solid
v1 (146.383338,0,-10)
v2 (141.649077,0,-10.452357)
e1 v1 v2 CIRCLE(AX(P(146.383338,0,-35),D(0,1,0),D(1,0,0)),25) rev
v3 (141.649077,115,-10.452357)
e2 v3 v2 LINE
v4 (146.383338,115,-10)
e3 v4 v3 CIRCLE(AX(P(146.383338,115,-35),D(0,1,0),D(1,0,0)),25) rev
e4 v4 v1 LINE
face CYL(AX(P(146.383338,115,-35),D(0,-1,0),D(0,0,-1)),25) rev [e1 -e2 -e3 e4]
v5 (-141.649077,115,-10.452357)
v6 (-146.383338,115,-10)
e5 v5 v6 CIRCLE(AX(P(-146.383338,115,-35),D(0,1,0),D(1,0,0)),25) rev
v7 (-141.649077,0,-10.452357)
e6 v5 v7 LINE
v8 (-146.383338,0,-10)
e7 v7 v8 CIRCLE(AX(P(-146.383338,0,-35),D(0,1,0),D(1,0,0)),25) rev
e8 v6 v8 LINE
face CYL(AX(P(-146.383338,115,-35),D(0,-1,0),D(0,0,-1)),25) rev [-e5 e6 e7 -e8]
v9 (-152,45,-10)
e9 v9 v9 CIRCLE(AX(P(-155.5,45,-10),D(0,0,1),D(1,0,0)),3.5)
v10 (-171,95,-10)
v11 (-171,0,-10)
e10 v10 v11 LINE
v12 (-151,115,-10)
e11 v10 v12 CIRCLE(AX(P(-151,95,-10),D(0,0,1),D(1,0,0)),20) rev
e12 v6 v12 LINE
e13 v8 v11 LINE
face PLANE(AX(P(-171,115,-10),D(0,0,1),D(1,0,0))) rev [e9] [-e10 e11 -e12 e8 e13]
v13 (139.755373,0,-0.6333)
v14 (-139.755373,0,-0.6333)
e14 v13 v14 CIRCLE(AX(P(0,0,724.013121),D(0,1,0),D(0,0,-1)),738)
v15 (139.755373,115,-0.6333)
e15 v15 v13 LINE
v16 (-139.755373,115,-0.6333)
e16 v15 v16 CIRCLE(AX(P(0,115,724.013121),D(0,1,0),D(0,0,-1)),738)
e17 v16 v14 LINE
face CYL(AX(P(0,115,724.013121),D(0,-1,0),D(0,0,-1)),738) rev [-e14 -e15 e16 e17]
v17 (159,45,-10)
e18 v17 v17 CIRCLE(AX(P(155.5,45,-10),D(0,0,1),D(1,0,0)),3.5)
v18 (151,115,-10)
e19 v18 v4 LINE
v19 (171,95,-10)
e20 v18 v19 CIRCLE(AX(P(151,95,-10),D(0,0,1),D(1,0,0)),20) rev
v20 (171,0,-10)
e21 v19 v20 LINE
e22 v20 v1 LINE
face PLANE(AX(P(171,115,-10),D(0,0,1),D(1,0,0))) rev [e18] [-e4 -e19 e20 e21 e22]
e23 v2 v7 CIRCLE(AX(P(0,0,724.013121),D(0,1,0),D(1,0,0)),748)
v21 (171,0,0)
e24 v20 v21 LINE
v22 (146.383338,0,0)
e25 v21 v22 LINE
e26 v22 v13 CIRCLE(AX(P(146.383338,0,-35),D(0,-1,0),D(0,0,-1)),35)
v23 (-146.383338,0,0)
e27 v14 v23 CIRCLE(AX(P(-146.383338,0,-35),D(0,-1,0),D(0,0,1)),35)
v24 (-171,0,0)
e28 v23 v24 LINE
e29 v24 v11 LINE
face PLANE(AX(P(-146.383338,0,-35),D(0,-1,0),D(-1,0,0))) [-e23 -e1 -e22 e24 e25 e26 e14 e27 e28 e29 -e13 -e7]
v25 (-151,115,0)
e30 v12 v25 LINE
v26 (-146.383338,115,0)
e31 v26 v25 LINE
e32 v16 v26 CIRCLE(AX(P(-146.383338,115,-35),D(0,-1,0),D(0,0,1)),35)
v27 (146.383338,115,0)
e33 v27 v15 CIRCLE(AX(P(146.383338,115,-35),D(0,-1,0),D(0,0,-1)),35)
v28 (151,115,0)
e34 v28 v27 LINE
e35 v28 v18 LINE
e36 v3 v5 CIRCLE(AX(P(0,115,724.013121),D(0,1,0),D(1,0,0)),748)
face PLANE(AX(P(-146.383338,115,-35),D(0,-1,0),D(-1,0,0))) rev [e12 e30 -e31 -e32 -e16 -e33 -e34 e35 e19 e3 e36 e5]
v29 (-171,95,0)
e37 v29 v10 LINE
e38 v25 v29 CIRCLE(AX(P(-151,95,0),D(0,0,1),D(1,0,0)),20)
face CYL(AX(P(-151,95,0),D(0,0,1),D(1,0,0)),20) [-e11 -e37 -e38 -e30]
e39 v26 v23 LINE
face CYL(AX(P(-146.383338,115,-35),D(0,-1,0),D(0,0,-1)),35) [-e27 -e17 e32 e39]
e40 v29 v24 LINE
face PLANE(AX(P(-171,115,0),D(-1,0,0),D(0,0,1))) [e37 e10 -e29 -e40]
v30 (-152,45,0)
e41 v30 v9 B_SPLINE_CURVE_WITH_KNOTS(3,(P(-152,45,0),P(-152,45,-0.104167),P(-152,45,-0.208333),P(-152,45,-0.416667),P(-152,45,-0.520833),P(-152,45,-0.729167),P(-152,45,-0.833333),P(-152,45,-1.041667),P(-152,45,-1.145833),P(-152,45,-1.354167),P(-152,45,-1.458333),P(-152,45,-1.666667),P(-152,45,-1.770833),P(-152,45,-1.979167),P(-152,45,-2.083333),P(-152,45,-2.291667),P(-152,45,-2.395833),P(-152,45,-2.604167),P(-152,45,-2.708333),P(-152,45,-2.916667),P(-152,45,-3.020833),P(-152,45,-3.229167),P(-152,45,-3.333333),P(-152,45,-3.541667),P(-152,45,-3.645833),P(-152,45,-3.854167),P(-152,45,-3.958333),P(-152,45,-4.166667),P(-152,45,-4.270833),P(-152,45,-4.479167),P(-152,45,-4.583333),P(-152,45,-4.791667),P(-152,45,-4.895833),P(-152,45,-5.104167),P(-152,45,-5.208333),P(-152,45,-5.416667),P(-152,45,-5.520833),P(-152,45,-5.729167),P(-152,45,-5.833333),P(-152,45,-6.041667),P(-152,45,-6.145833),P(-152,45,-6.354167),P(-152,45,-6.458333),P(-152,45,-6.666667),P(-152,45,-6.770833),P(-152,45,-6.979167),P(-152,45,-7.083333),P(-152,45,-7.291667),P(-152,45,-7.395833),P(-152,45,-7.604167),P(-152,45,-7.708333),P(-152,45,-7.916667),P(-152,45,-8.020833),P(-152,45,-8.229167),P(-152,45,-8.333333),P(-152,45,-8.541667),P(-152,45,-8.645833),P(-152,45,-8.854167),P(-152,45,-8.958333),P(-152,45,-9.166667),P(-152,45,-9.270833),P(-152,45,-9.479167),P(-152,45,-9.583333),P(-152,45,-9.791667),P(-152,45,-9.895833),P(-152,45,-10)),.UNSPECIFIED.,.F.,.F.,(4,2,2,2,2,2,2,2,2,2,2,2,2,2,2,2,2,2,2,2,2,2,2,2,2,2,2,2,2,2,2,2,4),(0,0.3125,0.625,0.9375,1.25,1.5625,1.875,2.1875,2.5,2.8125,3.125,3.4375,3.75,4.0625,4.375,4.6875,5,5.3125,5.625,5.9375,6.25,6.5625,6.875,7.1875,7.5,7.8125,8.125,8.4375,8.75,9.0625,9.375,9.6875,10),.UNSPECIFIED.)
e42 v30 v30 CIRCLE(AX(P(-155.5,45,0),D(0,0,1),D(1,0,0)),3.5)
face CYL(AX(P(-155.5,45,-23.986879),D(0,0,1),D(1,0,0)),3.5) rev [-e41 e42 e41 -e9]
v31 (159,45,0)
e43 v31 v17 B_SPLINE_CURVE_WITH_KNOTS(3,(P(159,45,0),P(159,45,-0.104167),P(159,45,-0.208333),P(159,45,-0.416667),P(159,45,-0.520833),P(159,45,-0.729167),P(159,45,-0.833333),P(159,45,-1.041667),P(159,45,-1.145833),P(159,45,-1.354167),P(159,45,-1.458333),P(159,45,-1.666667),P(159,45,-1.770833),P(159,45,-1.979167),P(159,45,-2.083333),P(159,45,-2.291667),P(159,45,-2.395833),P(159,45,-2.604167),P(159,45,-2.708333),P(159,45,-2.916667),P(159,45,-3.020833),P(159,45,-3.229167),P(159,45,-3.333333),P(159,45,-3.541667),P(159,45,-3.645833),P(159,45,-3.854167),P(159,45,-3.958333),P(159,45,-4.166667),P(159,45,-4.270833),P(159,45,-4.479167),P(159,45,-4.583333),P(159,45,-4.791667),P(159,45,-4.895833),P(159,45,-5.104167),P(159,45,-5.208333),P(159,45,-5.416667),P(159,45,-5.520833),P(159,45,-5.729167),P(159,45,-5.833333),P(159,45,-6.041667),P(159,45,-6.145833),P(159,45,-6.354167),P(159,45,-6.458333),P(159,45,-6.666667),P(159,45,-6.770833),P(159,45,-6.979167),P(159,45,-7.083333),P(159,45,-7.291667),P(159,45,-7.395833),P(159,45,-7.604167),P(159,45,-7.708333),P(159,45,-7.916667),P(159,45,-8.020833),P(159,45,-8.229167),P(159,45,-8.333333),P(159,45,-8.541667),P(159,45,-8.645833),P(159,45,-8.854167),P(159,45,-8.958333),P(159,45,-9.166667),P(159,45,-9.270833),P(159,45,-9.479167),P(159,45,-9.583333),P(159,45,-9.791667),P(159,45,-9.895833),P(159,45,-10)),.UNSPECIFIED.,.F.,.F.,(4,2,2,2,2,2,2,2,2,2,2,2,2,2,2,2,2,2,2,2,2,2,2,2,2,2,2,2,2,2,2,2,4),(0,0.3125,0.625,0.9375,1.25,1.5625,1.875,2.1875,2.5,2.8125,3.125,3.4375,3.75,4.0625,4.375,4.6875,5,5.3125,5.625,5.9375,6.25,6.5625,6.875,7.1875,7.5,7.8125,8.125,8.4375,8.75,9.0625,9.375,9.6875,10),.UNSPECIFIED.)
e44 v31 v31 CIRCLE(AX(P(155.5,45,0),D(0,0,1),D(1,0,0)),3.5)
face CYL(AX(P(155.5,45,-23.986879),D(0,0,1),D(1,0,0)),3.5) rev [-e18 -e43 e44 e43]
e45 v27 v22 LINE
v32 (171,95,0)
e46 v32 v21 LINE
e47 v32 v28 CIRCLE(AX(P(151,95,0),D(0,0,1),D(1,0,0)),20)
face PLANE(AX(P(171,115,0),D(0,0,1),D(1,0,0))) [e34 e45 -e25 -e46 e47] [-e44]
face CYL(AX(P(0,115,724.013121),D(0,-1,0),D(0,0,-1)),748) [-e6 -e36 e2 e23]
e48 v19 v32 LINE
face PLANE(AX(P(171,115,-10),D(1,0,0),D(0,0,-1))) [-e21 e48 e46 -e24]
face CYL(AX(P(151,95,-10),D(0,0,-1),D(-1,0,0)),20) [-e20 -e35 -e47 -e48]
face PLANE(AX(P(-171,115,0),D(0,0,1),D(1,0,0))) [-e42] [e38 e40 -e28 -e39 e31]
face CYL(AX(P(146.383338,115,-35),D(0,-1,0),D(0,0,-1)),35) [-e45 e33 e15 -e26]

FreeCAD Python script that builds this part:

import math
import FreeCAD as App
import Part
import Sketcher
from FreeCAD import Vector


def edges_at(feature, points):
    """Names of the edges that pass closest to the given points."""
    edges = feature.Shape.Edges
    near = lambda p: min(range(len(edges)), key=lambda i: edges[i].distToShape(Part.Vertex(*p))[0])
    return sorted({f"Edge{near(p) + 1}" for p in points})

doc = App.newDocument("Part")
body = doc.addObject("PartDesign::Body", "Body")

sketch1 = doc.addObject("Sketcher::SketchObject", "Sketch")
body.addObject(sketch1)
sketch1.AttachmentSupport = (doc.XZ_Plane, [""])
sketch1.MapMode = "FlatFace"
sketch1.addGeometry(Part.LineSegment(Vector(-171, 0, 0), Vector(-146.4, 0, 0)), False)
sketch1.addGeometry(Part.ArcOfCircle(Part.Circle(Vector(-146.4, -35, 0), Vector(0, 0, 1), 35), math.radians(79.08), math.radians(90)), False)
sketch1.addGeometry(Part.ArcOfCircle(Part.Circle(Vector(0, 724, 0), Vector(0, 0, 1), 738), math.radians(-101), math.radians(-79)), False)
sketch1.addGeometry(Part.ArcOfCircle(Part.Circle(Vector(146.4, -35, 0), Vector(0, 0, 1), 35), math.radians(90), math.radians(100.92)), False)
sketch1.addGeometry(Part.LineSegment(Vector(146.4, 0, 0), Vector(171, 0, 0)), False)
sketch1.addGeometry(Part.LineSegment(Vector(171, 0, 0), Vector(171, -10, 0)), False)
sketch1.addGeometry(Part.LineSegment(Vector(171, -10, 0), Vector(146.4, -10, 0)), False)
sketch1.addGeometry(Part.ArcOfCircle(Part.Circle(Vector(146.4, -35, 0), Vector(0, 0, 1), 25), math.radians(90), math.radians(100.92)), False)
sketch1.addGeometry(Part.ArcOfCircle(Part.Circle(Vector(0, 724, 0), Vector(0, 0, 1), 748), math.radians(-101), math.radians(-79)), False)
sketch1.addGeometry(Part.ArcOfCircle(Part.Circle(Vector(-146.4, -35, 0), Vector(0, 0, 1), 25), math.radians(79.08), math.radians(90)), False)
sketch1.addGeometry(Part.LineSegment(Vector(-146.4, -10, 0), Vector(-171, -10, 0)), False)
sketch1.addGeometry(Part.LineSegment(Vector(-171, -10, 0), Vector(-171, 0, 0)), False)
sketch1.addConstraint(Sketcher.Constraint("Tangent", 0, 2, 1, 2))
sketch1.addConstraint(Sketcher.Constraint("Tangent", 1, 1, 2, 1))
sketch1.addConstraint(Sketcher.Constraint("Tangent", 2, 2, 3, 2))
sketch1.addConstraint(Sketcher.Constraint("Tangent", 3, 1, 4, 1))
sketch1.addConstraint(Sketcher.Constraint("Coincident", 4, 2, 5, 1))
sketch1.addConstraint(Sketcher.Constraint("Coincident", 5, 2, 6, 1))
sketch1.addConstraint(Sketcher.Constraint("Tangent", 6, 2, 7, 1))
sketch1.addConstraint(Sketcher.Constraint("Tangent", 7, 2, 8, 2))
sketch1.addConstraint(Sketcher.Constraint("Tangent", 8, 1, 9, 1))
sketch1.addConstraint(Sketcher.Constraint("Tangent", 9, 2, 10, 1))
sketch1.addConstraint(Sketcher.Constraint("Coincident", 10, 2, 11, 1))
sketch1.addConstraint(Sketcher.Constraint("Coincident", 11, 2, 0, 1))
sketch1.addConstraint(Sketcher.Constraint("Horizontal", 0))
sketch1.addConstraint(Sketcher.Constraint("Horizontal", 4))
sketch1.addConstraint(Sketcher.Constraint("Vertical", 5))
sketch1.addConstraint(Sketcher.Constraint("Horizontal", 6))
sketch1.addConstraint(Sketcher.Constraint("Horizontal", 10))
sketch1.addConstraint(Sketcher.Constraint("Vertical", 11))
sketch1.addConstraint(Sketcher.Constraint("Coincident", 7, 3, 3, 3))
sketch1.addConstraint(Sketcher.Constraint("Coincident", 8, 3, 2, 3))
sketch1.addConstraint(Sketcher.Constraint("Coincident", 9, 3, 1, 3))
sketch1.addConstraint(Sketcher.Constraint("Equal", 1, 3))
sketch1.addConstraint(Sketcher.Constraint("Symmetric", 0, 2, 3, 1, -1, 1))
sketch1.addConstraint(Sketcher.Constraint("Symmetric", 5, 2, 10, 2, -2))
sketch1.addConstraint(Sketcher.Constraint("Radius", 1, 35.0))
sketch1.addConstraint(Sketcher.Constraint("Radius", 2, 738.0))
sketch1.addConstraint(Sketcher.Constraint("Radius", 7, 25.0))
sketch1.addConstraint(Sketcher.Constraint("DistanceX", -1, 1, 4, 2, 171.0))
sketch1.addConstraint(Sketcher.Constraint("DistanceX", 0, 1, 0, 2, 24.616662))
pad1 = doc.addObject("PartDesign::Pad", "Pad")
body.addObject(pad1)
pad1.Profile = sketch1
pad1.Length = 115
pad1.Reversed = True

sketch2 = doc.addObject("Sketcher::SketchObject", "Sketch001")
body.addObject(sketch2)
sketch2.AttachmentSupport = (doc.XY_Plane, [""])
sketch2.MapMode = "FlatFace"
sketch2.addGeometry(Part.Circle(Vector(-155.5, 45, 0), Vector(0, 0, 1), 3.5), False)
sketch2.addGeometry(Part.Circle(Vector(155.5, 45, 0), Vector(0, 0, 1), 3.5), False)
sketch2.addConstraint(Sketcher.Constraint("Equal", 0, 1))
sketch2.addConstraint(Sketcher.Constraint("Symmetric", 0, 3, 1, 3, -2))
sketch2.addConstraint(Sketcher.Constraint("Diameter", 0, 7.0))
sketch2.addConstraint(Sketcher.Constraint("DistanceY", -1, 1, 0, 3, 45.0))
sketch2.addConstraint(Sketcher.Constraint("DistanceX", 0, 3, 1, 3, 311.0))
pocket1 = doc.addObject("PartDesign::Pocket", "Pocket")
body.addObject(pocket1)
pocket1.Profile = sketch2
pocket1.Type = "ThroughAll"
doc.recompute()

fillet = doc.addObject("PartDesign::Fillet", "Fillet")
body.addObject(fillet)
fillet.Base = (pocket1, edges_at(pocket1, [(171, 115, -5), (-171, 115, -5)]))
fillet.Radius = 20

doc.recompute()
